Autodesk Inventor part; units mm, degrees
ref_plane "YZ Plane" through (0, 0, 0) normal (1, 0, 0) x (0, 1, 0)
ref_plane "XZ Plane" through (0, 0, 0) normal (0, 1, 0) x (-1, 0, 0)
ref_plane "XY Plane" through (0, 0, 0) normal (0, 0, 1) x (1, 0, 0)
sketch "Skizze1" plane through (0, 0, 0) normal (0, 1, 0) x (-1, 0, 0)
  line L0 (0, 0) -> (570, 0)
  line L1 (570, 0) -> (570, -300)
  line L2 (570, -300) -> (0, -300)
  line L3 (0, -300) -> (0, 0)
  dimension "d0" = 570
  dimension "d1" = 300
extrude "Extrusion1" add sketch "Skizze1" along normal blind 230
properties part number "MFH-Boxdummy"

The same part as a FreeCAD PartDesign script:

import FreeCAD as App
import Part
import Sketcher
from FreeCAD import Vector
Q = App.Units.Quantity


def add_polygon(sketch, points):
    """Adds a closed chain of lines whose ends are joined by coincident constraints."""
    first, n = sketch.GeometryCount, len(points)
    for a, b in zip(points, points[1:] + points[:1]):
        sketch.addGeometry(Part.LineSegment(App.Vector(*a, 0), App.Vector(*b, 0)), False)
    for i in range(n):
        sketch.addConstraint(Sketcher.Constraint("Coincident", first + i, 2, first + (i + 1) % n, 1))

doc = App.newDocument("Part")
params = doc.addObject("Spreadsheet::Sheet", "Params")
for row, (alias, value) in enumerate([
    ("sketch1_width", "570 mm"),
    ("sketch1_height", "300 mm"),
    ("pad1_length", "230 mm"),
], start=1):
    params.set(f"A{row}", alias)
    params.set(f"B{row}", "=" + value)
    params.setAlias(f"B{row}", alias)

body = doc.addObject("PartDesign::Body", "Body")

# Sketch on XZ plane
sketch1 = body.newObject("Sketcher::SketchObject", "Sketch")
sketch1.AttachmentSupport = (doc.getObject("XZ_Plane"), [""])
sketch1.MapMode = "FlatFace"
add_polygon(sketch1, [(-570, 0), (0, 0), (0, -300), (-570, -300)])  # lines 0-3
sketch1.addConstraint([
    Sketcher.Constraint("Horizontal", 0),
    Sketcher.Constraint("Vertical", 1),
    Sketcher.Constraint("Horizontal", 2),
    Sketcher.Constraint("Vertical", 3),
    Sketcher.Constraint("Coincident", 0, 2, -1, 1),
    Sketcher.Constraint("DistanceX", 0, 1, 0, 2, Q("570 mm")),
    Sketcher.Constraint("DistanceY", 1, 2, 1, 1, Q("300 mm")),
])
sketch1.setExpression("Constraints[9]", "Params.sketch1_width")
sketch1.setExpression("Constraints[10]", "Params.sketch1_height")
pad1 = body.newObject("PartDesign::Pad", "Pad")
pad1.Profile = sketch1
pad1.setExpression("Length", "Params.pad1_length")
pad1.Reversed = True

doc.recompute()
